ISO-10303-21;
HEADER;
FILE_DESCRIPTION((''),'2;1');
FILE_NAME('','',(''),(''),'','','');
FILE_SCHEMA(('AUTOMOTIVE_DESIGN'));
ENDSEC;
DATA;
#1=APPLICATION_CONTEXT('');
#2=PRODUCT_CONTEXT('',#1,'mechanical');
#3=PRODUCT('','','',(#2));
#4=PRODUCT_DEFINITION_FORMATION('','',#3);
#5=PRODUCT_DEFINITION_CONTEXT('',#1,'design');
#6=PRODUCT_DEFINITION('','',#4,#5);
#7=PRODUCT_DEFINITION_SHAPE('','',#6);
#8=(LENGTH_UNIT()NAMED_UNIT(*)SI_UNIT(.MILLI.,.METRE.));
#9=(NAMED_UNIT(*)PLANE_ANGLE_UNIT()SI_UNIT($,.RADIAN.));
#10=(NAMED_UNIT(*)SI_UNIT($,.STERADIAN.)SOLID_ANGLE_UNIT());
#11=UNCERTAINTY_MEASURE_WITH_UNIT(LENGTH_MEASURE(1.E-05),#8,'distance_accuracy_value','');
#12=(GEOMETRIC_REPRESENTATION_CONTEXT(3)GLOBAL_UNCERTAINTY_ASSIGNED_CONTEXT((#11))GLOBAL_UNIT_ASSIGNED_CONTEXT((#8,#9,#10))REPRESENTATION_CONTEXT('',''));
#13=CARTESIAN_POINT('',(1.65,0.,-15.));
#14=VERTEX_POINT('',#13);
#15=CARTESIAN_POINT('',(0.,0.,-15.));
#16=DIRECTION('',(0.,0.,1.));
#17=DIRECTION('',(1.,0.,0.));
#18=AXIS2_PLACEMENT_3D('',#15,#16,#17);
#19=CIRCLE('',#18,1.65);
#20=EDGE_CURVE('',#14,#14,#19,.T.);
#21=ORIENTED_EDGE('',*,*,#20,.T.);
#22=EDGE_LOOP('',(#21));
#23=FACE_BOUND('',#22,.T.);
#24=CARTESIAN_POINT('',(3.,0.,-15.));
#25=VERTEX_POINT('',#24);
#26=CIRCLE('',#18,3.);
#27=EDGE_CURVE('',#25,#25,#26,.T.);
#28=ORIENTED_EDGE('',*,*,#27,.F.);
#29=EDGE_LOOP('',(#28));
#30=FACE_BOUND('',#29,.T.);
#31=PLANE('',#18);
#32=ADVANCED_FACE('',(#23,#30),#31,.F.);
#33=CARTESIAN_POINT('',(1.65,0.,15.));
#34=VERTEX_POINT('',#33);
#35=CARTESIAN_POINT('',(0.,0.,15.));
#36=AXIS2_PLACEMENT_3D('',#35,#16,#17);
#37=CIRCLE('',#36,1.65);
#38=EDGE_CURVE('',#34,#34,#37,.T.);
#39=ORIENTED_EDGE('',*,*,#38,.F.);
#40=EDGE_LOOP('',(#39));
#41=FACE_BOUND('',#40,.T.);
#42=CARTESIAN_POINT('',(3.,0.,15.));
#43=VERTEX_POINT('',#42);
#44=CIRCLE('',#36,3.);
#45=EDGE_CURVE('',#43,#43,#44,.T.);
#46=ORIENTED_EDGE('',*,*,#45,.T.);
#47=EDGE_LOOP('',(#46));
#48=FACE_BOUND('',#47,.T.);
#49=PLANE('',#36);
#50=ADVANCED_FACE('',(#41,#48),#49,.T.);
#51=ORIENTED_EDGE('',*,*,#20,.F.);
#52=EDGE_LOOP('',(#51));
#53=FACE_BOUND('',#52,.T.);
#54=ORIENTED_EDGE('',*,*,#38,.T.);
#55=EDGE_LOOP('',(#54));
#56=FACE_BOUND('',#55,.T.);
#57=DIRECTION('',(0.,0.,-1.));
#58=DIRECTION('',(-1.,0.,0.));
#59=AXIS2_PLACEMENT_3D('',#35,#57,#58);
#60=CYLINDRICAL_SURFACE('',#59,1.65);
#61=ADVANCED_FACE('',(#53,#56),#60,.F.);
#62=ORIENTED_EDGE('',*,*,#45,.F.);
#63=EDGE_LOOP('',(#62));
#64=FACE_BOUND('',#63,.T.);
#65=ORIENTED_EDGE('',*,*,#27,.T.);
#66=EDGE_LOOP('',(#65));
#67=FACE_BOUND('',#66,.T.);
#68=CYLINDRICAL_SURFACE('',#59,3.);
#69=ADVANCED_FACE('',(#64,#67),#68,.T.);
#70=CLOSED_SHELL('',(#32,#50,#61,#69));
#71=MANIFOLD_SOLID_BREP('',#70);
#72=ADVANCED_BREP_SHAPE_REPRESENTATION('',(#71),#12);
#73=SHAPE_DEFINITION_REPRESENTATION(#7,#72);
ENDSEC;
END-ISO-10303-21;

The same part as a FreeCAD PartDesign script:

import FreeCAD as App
import Part
import Sketcher
from FreeCAD import Vector
Q = App.Units.Quantity

doc = App.newDocument("Part")
body = doc.addObject("PartDesign::Body", "Body")

sketch1 = body.newObject("Sketcher::SketchObject", "Sketch")
sketch1.AttachmentSupport = (doc.getObject("XY_Plane"), [""])
sketch1.MapMode = "FlatFace"
sketch1.addGeometry(Part.Circle(Vector(0, 0, 0), Vector(0, 0, 1), 3), False)
sketch1.addGeometry(Part.Circle(Vector(0, 0, 0), Vector(0, 0, 1), 1.6), False)
sketch1.addConstraint(Sketcher.Constraint("Coincident", 0, 3, -1, 1))
sketch1.addConstraint(Sketcher.Constraint("Coincident", 1, 3, -1, 1))
sketch1.addConstraint(Sketcher.Constraint("Diameter", 0, Q("6 mm")))
sketch1.addConstraint(Sketcher.Constraint("Diameter", 1, Q("3.3 mm")))
pad1 = body.newObject("PartDesign::Pad", "Pad")
pad1.Profile = sketch1
pad1.Length = 30
pad1.Midplane = True

doc.recompute()
